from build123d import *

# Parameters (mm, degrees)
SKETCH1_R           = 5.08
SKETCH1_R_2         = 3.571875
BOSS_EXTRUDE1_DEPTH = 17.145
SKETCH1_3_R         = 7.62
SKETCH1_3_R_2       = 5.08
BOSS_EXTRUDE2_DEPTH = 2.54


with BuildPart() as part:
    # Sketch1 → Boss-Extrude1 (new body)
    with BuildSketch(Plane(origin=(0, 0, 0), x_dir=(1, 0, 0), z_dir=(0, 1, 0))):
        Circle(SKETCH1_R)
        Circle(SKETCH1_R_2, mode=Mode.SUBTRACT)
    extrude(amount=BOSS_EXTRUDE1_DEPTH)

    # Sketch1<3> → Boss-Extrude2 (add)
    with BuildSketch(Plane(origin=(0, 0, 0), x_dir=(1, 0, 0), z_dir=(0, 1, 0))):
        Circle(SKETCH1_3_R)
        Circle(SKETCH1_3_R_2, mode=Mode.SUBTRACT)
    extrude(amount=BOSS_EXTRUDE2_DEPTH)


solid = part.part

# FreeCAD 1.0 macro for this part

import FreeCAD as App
import Part
import Sketcher
Q = App.Units.Quantity

doc = App.newDocument("Part")
body = doc.addObject("PartDesign::Body", "Body")

# Sketch on XZ plane
sketch1 = doc.addObject("Sketcher::SketchObject", "Sketch")
body.addObject(sketch1)
sketch1.AttachmentSupport = (doc.XZ_Plane, [""])
sketch1.MapMode = "FlatFace"
sketch1.addGeometry([
    Part.Circle(App.Vector(0, 0, 0), App.Vector(0, 0, 1), 5.1),
    Part.Circle(App.Vector(0, 0, 0), App.Vector(0, 0, 1), 3.6),
], False)
sketch1.addConstraint([
    Sketcher.Constraint("Coincident", 0, 3, -1, 1),
    Sketcher.Constraint("Coincident", 1, 3, -1, 1),
    Sketcher.Constraint("Diameter", 0, Q("0.4 in")),
    Sketcher.Constraint("Diameter", 1, Q("0.28125 in")),
])
pad1 = doc.addObject("PartDesign::Pad", "Pad")
body.addObject(pad1)
pad1.Profile = sketch1
pad1.Length = Q("0.675 in")
pad1.Reversed = True

# Sketch on XZ plane
sketch2 = doc.addObject("Sketcher::SketchObject", "Sketch001")
body.addObject(sketch2)
sketch2.AttachmentSupport = (doc.XZ_Plane, [""])
sketch2.MapMode = "FlatFace"
sketch2.addGeometry([
    Part.Circle(App.Vector(0, 0, 0), App.Vector(0, 0, 1), 8),
    Part.Circle(App.Vector(0, 0, 0), App.Vector(0, 0, 1), 5),
], False)
sketch2.addConstraint([
    Sketcher.Constraint("Coincident", 0, 3, -1, 1),
    Sketcher.Constraint("Coincident", 1, 3, -1, 1),
    Sketcher.Constraint("Diameter", 0, Q("0.6 in")),
    Sketcher.Constraint("Diameter", 1, Q("0.4 in")),
])
pad2 = doc.addObject("PartDesign::Pad", "Pad001")
body.addObject(pad2)
pad2.Profile = sketch2
pad2.Length = Q("0.1 in")
pad2.Reversed = True

doc.recompute()
